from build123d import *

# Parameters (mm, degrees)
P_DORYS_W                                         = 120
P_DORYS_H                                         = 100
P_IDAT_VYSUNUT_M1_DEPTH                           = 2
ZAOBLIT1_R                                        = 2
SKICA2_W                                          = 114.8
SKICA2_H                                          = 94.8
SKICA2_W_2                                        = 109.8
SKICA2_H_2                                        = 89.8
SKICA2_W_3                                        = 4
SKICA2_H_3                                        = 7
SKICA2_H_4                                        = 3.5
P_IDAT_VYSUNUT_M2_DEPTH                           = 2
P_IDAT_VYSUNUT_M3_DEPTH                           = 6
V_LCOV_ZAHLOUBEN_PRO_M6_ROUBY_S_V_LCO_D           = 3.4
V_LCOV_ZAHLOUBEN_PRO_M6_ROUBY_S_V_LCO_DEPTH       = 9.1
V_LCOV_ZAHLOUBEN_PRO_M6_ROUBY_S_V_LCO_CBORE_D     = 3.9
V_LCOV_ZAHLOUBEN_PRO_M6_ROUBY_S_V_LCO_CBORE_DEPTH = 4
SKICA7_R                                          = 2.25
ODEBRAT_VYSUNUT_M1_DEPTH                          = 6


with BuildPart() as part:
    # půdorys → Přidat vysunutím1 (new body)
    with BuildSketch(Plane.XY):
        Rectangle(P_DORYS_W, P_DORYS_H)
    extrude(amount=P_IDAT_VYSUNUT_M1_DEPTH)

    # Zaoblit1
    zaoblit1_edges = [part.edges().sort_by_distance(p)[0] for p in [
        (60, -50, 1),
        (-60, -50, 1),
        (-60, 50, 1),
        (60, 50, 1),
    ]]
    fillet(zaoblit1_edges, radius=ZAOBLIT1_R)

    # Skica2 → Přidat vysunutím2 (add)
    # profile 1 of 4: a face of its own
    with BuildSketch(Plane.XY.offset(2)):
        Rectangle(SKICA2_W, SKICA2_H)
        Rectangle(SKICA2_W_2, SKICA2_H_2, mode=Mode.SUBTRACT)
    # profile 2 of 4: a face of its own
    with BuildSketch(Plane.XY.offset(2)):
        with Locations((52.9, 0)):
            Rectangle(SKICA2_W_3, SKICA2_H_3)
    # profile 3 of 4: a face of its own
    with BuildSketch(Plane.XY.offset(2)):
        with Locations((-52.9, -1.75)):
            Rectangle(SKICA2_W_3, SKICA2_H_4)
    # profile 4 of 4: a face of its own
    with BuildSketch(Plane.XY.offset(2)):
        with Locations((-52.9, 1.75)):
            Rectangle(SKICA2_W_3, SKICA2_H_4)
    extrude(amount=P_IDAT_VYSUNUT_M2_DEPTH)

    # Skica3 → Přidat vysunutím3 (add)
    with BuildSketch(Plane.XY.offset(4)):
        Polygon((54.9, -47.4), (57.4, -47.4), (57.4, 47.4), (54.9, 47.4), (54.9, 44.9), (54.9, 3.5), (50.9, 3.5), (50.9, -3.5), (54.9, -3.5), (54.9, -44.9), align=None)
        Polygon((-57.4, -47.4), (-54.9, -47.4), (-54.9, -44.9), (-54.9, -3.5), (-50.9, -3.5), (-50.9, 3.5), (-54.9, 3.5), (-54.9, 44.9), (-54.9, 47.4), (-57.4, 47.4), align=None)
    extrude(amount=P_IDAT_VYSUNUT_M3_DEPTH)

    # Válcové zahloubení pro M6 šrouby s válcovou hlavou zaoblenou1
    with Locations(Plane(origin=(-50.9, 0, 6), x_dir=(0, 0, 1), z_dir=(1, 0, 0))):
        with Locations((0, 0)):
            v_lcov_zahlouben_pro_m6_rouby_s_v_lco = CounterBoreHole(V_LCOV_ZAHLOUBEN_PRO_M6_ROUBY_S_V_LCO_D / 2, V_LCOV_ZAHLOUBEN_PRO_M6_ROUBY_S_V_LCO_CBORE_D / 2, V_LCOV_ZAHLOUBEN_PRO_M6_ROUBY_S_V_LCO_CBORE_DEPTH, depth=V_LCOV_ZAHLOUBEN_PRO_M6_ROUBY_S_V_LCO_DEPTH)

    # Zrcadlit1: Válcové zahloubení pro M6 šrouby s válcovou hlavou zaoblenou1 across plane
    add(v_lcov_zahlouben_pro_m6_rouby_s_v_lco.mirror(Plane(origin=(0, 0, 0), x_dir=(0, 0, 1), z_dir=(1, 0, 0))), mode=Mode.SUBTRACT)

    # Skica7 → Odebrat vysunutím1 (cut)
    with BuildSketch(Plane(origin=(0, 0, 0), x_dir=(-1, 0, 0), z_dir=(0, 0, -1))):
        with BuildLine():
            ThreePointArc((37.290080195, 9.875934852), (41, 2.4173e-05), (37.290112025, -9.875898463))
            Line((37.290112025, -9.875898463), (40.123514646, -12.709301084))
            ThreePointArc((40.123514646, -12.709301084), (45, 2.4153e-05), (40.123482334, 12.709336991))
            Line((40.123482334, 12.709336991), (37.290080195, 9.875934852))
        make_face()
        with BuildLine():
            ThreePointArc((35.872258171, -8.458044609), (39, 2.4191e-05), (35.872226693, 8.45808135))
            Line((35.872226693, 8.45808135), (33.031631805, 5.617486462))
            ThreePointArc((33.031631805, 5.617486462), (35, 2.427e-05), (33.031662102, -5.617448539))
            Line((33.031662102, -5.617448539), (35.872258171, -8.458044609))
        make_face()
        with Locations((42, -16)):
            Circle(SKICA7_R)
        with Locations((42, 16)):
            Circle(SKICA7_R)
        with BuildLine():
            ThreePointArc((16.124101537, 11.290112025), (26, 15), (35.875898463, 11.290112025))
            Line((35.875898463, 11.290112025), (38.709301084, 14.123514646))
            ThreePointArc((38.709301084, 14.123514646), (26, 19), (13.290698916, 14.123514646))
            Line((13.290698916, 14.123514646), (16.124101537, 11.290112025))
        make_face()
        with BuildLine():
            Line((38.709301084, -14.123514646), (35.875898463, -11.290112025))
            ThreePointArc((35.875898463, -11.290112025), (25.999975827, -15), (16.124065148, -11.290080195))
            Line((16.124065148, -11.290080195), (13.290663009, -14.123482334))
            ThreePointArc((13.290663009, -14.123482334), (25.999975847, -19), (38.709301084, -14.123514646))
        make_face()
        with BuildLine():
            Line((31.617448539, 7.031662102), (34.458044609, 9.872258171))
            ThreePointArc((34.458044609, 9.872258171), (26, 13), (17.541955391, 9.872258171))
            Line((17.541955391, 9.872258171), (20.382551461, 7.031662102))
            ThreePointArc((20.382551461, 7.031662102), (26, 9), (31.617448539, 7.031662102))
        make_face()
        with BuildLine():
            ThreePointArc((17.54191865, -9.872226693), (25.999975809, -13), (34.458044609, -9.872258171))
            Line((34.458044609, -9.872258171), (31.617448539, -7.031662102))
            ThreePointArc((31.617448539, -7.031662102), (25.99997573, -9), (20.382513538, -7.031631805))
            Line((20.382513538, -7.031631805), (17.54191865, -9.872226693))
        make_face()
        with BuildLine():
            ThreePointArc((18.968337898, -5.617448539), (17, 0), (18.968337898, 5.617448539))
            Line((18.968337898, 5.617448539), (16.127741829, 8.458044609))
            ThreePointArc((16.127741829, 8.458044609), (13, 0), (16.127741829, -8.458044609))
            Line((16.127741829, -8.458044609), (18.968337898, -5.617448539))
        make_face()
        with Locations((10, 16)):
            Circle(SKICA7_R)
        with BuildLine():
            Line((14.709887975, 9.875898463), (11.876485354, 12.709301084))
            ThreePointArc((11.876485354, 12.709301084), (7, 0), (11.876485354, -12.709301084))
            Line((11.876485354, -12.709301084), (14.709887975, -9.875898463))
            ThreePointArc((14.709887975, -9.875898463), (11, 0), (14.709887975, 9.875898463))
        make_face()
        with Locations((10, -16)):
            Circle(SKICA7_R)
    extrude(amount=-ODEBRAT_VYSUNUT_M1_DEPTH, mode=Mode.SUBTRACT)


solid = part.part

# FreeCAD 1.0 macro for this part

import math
import FreeCAD as App
import Part
import Sketcher
from FreeCAD import Vector


def edges_at(feature, points):
    """Names of the edges that pass closest to the given points."""
    edges = feature.Shape.Edges
    near = lambda p: min(range(len(edges)), key=lambda i: edges[i].distToShape(Part.Vertex(*p))[0])
    return sorted({f"Edge{near(p) + 1}" for p in points})

doc = App.newDocument("Part")
body = doc.addObject("PartDesign::Body", "Body")

sketch1 = body.newObject("Sketcher::SketchObject", "Sketch")
sketch1.AttachmentSupport = (doc.getObject("XY_Plane"), [""])
sketch1.MapMode = "FlatFace"
sketch1.addGeometry([
    Part.LineSegment(Vector(-60, 50, 0), Vector(-60, -50, 0)),
    Part.LineSegment(Vector(-60, -50, 0), Vector(60, -50, 0)),
    Part.LineSegment(Vector(60, -50, 0), Vector(60, 50, 0)),
    Part.LineSegment(Vector(60, 50, 0), Vector(-60, 50, 0)),
], False)
sketch1.addConstraint([
    Sketcher.Constraint("Coincident", 0, 2, 1, 1),
    Sketcher.Constraint("Coincident", 1, 2, 2, 1),
    Sketcher.Constraint("Coincident", 2, 2, 3, 1),
    Sketcher.Constraint("Coincident", 3, 2, 0, 1),
    Sketcher.Constraint("Vertical", 0),
    Sketcher.Constraint("Horizontal", 1),
    Sketcher.Constraint("Vertical", 2),
    Sketcher.Constraint("Horizontal", 3),
    Sketcher.Constraint("Symmetric", 0, 2, 2, 2, -1, 1),
    Sketcher.Constraint("DistanceX", 1, 1, 1, 2, 120.0),
    Sketcher.Constraint("DistanceY", 0, 2, 0, 1, 100.0),
])
pad1 = body.newObject("PartDesign::Pad", "Pad")
pad1.Profile = sketch1
pad1.Length = 2
doc.recompute()

fillet = body.newObject("PartDesign::Fillet", "Fillet")
fillet.Base = (pad1, edges_at(pad1, [
    (60, -50, 1),
    (-60, -50, 1),
    (-60, 50, 1),
    (60, 50, 1),
]))
fillet.Radius = 2

sketch2 = body.newObject("Sketcher::SketchObject", "Sketch001")
sketch2.AttachmentSupport = (doc.getObject("XY_Plane"), [""])
sketch2.MapMode = "FlatFace"
sketch2.AttachmentOffset = App.Placement(Vector(0, 0, 2), App.Rotation())
sketch2.addGeometry([
    Part.LineSegment(Vector(-57.4, 47.4, 0), Vector(-57.4, -47.4, 0)),
    Part.LineSegment(Vector(-57.4, -47.4, 0), Vector(57.4, -47.4, 0)),
    Part.LineSegment(Vector(57.4, -47.4, 0), Vector(57.4, 47.4, 0)),
    Part.LineSegment(Vector(57.4, 47.4, 0), Vector(-57.4, 47.4, 0)),
    Part.LineSegment(Vector(54.9, -44.9, 0), Vector(-54.9, -44.9, 0)),
    Part.LineSegment(Vector(-54.9, -44.9, 0), Vector(-54.9, -3.5, 0)),
    Part.LineSegment(Vector(-54.9, -3.5, 0), Vector(-50.9, -3.5, 0)),
    Part.LineSegment(Vector(-50.9, -3.5, 0), Vector(-50.9, 3.5, 0)),
    Part.LineSegment(Vector(-50.9, 3.5, 0), Vector(-54.9, 3.5, 0)),
    Part.LineSegment(Vector(-54.9, 3.5, 0), Vector(-54.9, 44.9, 0)),
    Part.LineSegment(Vector(-54.9, 44.9, 0), Vector(54.9, 44.9, 0)),
    Part.LineSegment(Vector(54.9, 44.9, 0), Vector(54.9, 3.5, 0)),
    Part.LineSegment(Vector(54.9, 3.5, 0), Vector(50.9, 3.5, 0)),
    Part.LineSegment(Vector(50.9, 3.5, 0), Vector(50.9, -3.5, 0)),
    Part.LineSegment(Vector(50.9, -3.5, 0), Vector(54.9, -3.5, 0)),
    Part.LineSegment(Vector(54.9, -3.5, 0), Vector(54.9, -44.9, 0)),
], False)
sketch2.addConstraint([
    Sketcher.Constraint("Coincident", 0, 2, 1, 1),
    Sketcher.Constraint("Coincident", 1, 2, 2, 1),
    Sketcher.Constraint("Coincident", 2, 2, 3, 1),
    Sketcher.Constraint("Coincident", 3, 2, 0, 1),
    Sketcher.Constraint("Coincident", 4, 2, 5, 1),
    Sketcher.Constraint("Coincident", 5, 2, 6, 1),
    Sketcher.Constraint("Coincident", 6, 2, 7, 1),
    Sketcher.Constraint("Coincident", 7, 2, 8, 1),
    Sketcher.Constraint("Coincident", 8, 2, 9, 1),
    Sketcher.Constraint("Coincident", 9, 2, 10, 1),
    Sketcher.Constraint("Coincident", 10, 2, 11, 1),
    Sketcher.Constraint("Coincident", 11, 2, 12, 1),
    Sketcher.Constraint("Coincident", 12, 2, 13, 1),
    Sketcher.Constraint("Coincident", 13, 2, 14, 1),
    Sketcher.Constraint("Coincident", 14, 2, 15, 1),
    Sketcher.Constraint("Coincident", 15, 2, 4, 1),
    Sketcher.Constraint("Vertical", 0),
    Sketcher.Constraint("Horizontal", 1),
    Sketcher.Constraint("Vertical", 2),
    Sketcher.Constraint("Horizontal", 3),
    Sketcher.Constraint("Horizontal", 4),
    Sketcher.Constraint("Vertical", 5),
    Sketcher.Constraint("Horizontal", 6),
    Sketcher.Constraint("Vertical", 7),
    Sketcher.Constraint("Horizontal", 8),
    Sketcher.Constraint("Vertical", 9),
    Sketcher.Constraint("Horizontal", 10),
    Sketcher.Constraint("Vertical", 11),
    Sketcher.Constraint("Horizontal", 12),
    Sketcher.Constraint("Vertical", 13),
    Sketcher.Constraint("Horizontal", 14),
    Sketcher.Constraint("Vertical", 15),
    Sketcher.Constraint("Symmetric", 0, 2, 2, 2, -1, 1),
    Sketcher.Constraint("Symmetric", 4, 2, 10, 2, -1, 1),
    Sketcher.Constraint("Symmetric", 6, 2, 12, 2, -1, 1),
    Sketcher.Constraint("Symmetric", 8, 2, 14, 2, -1, 1),
    Sketcher.Constraint("Symmetric", 8, 2, 11, 2, -2),
    Sketcher.Constraint("DistanceX", 6, 1, 6, 2, 4.0),
    Sketcher.Constraint("DistanceY", 7, 1, 7, 2, 7.0),
    Sketcher.Constraint("DistanceX", 1, 1, 1, 2, 114.8),
    Sketcher.Constraint("DistanceX", 4, 2, 4, 1, 109.8),
    Sketcher.Constraint("DistanceY", 0, 2, 0, 1, 94.8),
    Sketcher.Constraint("DistanceY", 5, 1, 5, 2, 41.4),
])
pad2 = body.newObject("PartDesign::Pad", "Pad001")
pad2.Profile = sketch2
pad2.Length = 2

sketch3 = body.newObject("Sketcher::SketchObject", "Sketch002")
sketch3.AttachmentSupport = (doc.getObject("XY_Plane"), [""])
sketch3.MapMode = "FlatFace"
sketch3.AttachmentOffset = App.Placement(Vector(0, 0, 4), App.Rotation())
sketch3.addGeometry([
    Part.LineSegment(Vector(54.9, -47.4, 0), Vector(57.4, -47.4, 0)),
    Part.LineSegment(Vector(57.4, -47.4, 0), Vector(57.4, 47.4, 0)),
    Part.LineSegment(Vector(57.4, 47.4, 0), Vector(54.9, 47.4, 0)),
    Part.LineSegment(Vector(54.9, 47.4, 0), Vector(54.9, 3.5, 0)),
    Part.LineSegment(Vector(54.9, 3.5, 0), Vector(50.9, 3.5, 0)),
    Part.LineSegment(Vector(50.9, 3.5, 0), Vector(50.9, -3.5, 0)),
    Part.LineSegment(Vector(50.9, -3.5, 0), Vector(54.9, -3.5, 0)),
    Part.LineSegment(Vector(54.9, -3.5, 0), Vector(54.9, -47.4, 0)),
    Part.LineSegment(Vector(-57.4, -47.4, 0), Vector(-54.9, -47.4, 0)),
    Part.LineSegment(Vector(-54.9, -47.4, 0), Vector(-54.9, -3.5, 0)),
    Part.LineSegment(Vector(-54.9, -3.5, 0), Vector(-50.9, -3.5, 0)),
    Part.LineSegment(Vector(-50.9, -3.5, 0), Vector(-50.9, 3.5, 0)),
    Part.LineSegment(Vector(-50.9, 3.5, 0), Vector(-54.9, 3.5, 0)),
    Part.LineSegment(Vector(-54.9, 3.5, 0), Vector(-54.9, 47.4, 0)),
    Part.LineSegment(Vector(-54.9, 47.4, 0), Vector(-57.4, 47.4, 0)),
    Part.LineSegment(Vector(-57.4, 47.4, 0), Vector(-57.4, -47.4, 0)),
], False)
sketch3.addConstraint([
    Sketcher.Constraint("Coincident", 0, 2, 1, 1),
    Sketcher.Constraint("Coincident", 1, 2, 2, 1),
    Sketcher.Constraint("Coincident", 2, 2, 3, 1),
    Sketcher.Constraint("Coincident", 3, 2, 4, 1),
    Sketcher.Constraint("Coincident", 4, 2, 5, 1),
    Sketcher.Constraint("Coincident", 5, 2, 6, 1),
    Sketcher.Constraint("Coincident", 6, 2, 7, 1),
    Sketcher.Constraint("Coincident", 7, 2, 0, 1),
    Sketcher.Constraint("Coincident", 8, 2, 9, 1),
    Sketcher.Constraint("Coincident", 9, 2, 10, 1),
    Sketcher.Constraint("Coincident", 10, 2, 11, 1),
    Sketcher.Constraint("Coincident", 11, 2, 12, 1),
    Sketcher.Constraint("Coincident", 12, 2, 13, 1),
    Sketcher.Constraint("Coincident", 13, 2, 14, 1),
    Sketcher.Constraint("Coincident", 14, 2, 15, 1),
    Sketcher.Constraint("Coincident", 15, 2, 8, 1),
    Sketcher.Constraint("Horizontal", 0),
    Sketcher.Constraint("Vertical", 1),
    Sketcher.Constraint("Horizontal", 2),
    Sketcher.Constraint("Vertical", 3),
    Sketcher.Constraint("Horizontal", 4),
    Sketcher.Constraint("Vertical", 5),
    Sketcher.Constraint("Horizontal", 6),
    Sketcher.Constraint("Vertical", 7),
    Sketcher.Constraint("Horizontal", 8),
    Sketcher.Constraint("Vertical", 9),
    Sketcher.Constraint("Horizontal", 10),
    Sketcher.Constraint("Vertical", 11),
    Sketcher.Constraint("Horizontal", 12),
    Sketcher.Constraint("Vertical", 13),
    Sketcher.Constraint("Horizontal", 14),
    Sketcher.Constraint("Vertical", 15),
    Sketcher.Constraint("Symmetric", 2, 2, 8, 2, -1, 1),
    Sketcher.Constraint("Symmetric", 4, 2, 10, 2, -1, 1),
    Sketcher.Constraint("Symmetric", 6, 2, 12, 2, -1, 1),
    Sketcher.Constraint("Symmetric", 0, 2, 14, 2, -1, 1),
    Sketcher.Constraint("Symmetric", 7, 2, 8, 2, -2),
    Sketcher.Constraint("Horizontal", 6, 2, 9, 2),
    Sketcher.Constraint("DistanceX", 4, 2, 4, 1, 4.0),
    Sketcher.Constraint("DistanceY", 5, 2, 5, 1, 7.0),
    Sketcher.Constraint("DistanceX", 0, 1, 0, 2, 2.5),
    Sketcher.Constraint("DistanceY", 1, 1, 1, 2, 94.8),
    Sketcher.Constraint("DistanceX", -1, 1, 0, 2, 57.4),
])
pad3 = body.newObject("PartDesign::Pad", "Pad002")
pad3.Profile = sketch3
pad3.Length = 6

sketch4 = body.newObject("Sketcher::SketchObject", "Sketch003")
sketch4.AttachmentSupport = (doc.getObject("YZ_Plane"), [""])
sketch4.MapMode = "FlatFace"
sketch4.AttachmentOffset = App.Placement(Vector(0, 0, -50.9), App.Rotation())
sketch4.addGeometry(Part.Circle(Vector(0, 6, 0), Vector(0, 0, 1), 1.7), False)
sketch4.addConstraint([
    Sketcher.Constraint("PointOnObject", 0, 3, -2),
    Sketcher.Constraint("Diameter", 0, 3.4),
    Sketcher.Constraint("DistanceY", -1, 1, 0, 3, 6.0),
])
doc.recompute()
hole = body.newObject("PartDesign::Hole", "Hole")
hole.Profile = sketch4
hole.ThreadType = "None"
hole.Diameter = 3.4
hole.DepthType = "Dimension"
hole.Depth = 9.1
hole.DrillPoint = "Flat"
hole.HoleCutType = "Counterbore"
hole.HoleCutDiameter = 3.9
hole.HoleCutDepth = 4
doc.recompute()

mirrored = body.newObject("PartDesign::Mirrored", "Mirrored")
mirrored.Originals = [hole]
mirrored.MirrorPlane = (doc.getObject("YZ_Plane"), [""])
body.Tip = mirrored

sketch5 = body.newObject("Sketcher::SketchObject", "Sketch004")
sketch5.AttachmentSupport = (doc.getObject("XY_Plane"), [""])
sketch5.MapMode = "FlatFace"
sketch5.addGeometry([
    Part.ArcOfCircle(Part.Circle(Vector(-26, 0, 0), Vector(0, 0, 1), 15), math.radians(138.822369), math.radians(221.177446)),
    Part.LineSegment(Vector(-37.290112, -9.875898, 0), Vector(-40.123515, -12.709301, 0)),
    Part.ArcOfCircle(Part.Circle(Vector(-26, 0, 0), Vector(0, 0, 1), 19), math.radians(138.016816), math.radians(221.983039)),
    Part.LineSegment(Vector(-40.123482, 12.709337, 0), Vector(-37.29008, 9.875935, 0)),
    Part.ArcOfCircle(Part.Circle(Vector(-26, 0, 0), Vector(0, 0, 1), 13), math.radians(139.411513), math.radians(220.588274)),
    Part.LineSegment(Vector(-35.872227, 8.458081, 0), Vector(-33.031632, 5.617486, 0)),
    Part.ArcOfCircle(Part.Circle(Vector(-26, 0, 0), Vector(0, 0, 1), 9), math.radians(141.379061), math.radians(218.62063)),
    Part.LineSegment(Vector(-33.031662, -5.617449, 0), Vector(-35.872258, -8.458045, 0)),
    Part.Circle(Vector(-42, -16, 0), Vector(0, 0, 1), 2.25),
    Part.Circle(Vector(-42, 16, 0), Vector(0, 0, 1), 2.25),
    Part.ArcOfCircle(Part.Circle(Vector(-26, 0, 0), Vector(0, 0, 1), 15), math.radians(48.822554), math.radians(131.177446)),
    Part.LineSegment(Vector(-35.875898, 11.290112, 0), Vector(-38.709301, 14.123515, 0)),
    Part.ArcOfCircle(Part.Circle(Vector(-26, 0, 0), Vector(0, 0, 1), 19), math.radians(48.016961), math.radians(131.983039)),
    Part.LineSegment(Vector(-13.290699, 14.123515, 0), Vector(-16.124102, 11.290112, 0)),
    Part.LineSegment(Vector(-38.709301, -14.123515, 0), Vector(-35.875898, -11.290112, 0)),
    Part.ArcOfCircle(Part.Circle(Vector(-26, 0, 0), Vector(0, 0, 1), 15), math.radians(-131.177446), math.radians(-48.822369)),
    Part.LineSegment(Vector(-16.124065, -11.29008, 0), Vector(-13.290663, -14.123482, 0)),
    Part.ArcOfCircle(Part.Circle(Vector(-26, 0, 0), Vector(0, 0, 1), 19), math.radians(-131.983039), math.radians(-48.016816)),
    Part.LineSegment(Vector(-31.617449, 7.031662, 0), Vector(-34.458045, 9.872258, 0)),
    Part.ArcOfCircle(Part.Circle(Vector(-26, 0, 0), Vector(0, 0, 1), 13), math.radians(49.411726), math.radians(130.588274)),
    Part.LineSegment(Vector(-17.541955, 9.872258, 0), Vector(-20.382551, 7.031662, 0)),
    Part.ArcOfCircle(Part.Circle(Vector(-26, 0, 0), Vector(0, 0, 1), 9), math.radians(51.37937), math.radians(128.62063)),
    Part.ArcOfCircle(Part.Circle(Vector(-26, 0, 0), Vector(0, 0, 1), 13), math.radians(-130.588274), math.radians(-49.411513)),
    Part.LineSegment(Vector(-34.458045, -9.872258, 0), Vector(-31.617449, -7.031662, 0)),
    Part.ArcOfCircle(Part.Circle(Vector(-26, 0, 0), Vector(0, 0, 1), 9), math.radians(-128.62063), math.radians(-51.379061)),
    Part.LineSegment(Vector(-20.382514, -7.031632, 0), Vector(-17.541919, -9.872227, 0)),
    Part.ArcOfCircle(Part.Circle(Vector(-26, 0, 0), Vector(0, 0, 1), 9), math.radians(-38.62063), math.radians(38.62063)),
    Part.LineSegment(Vector(-18.968338, 5.617449, 0), Vector(-16.127742, 8.458045, 0)),
    Part.ArcOfCircle(Part.Circle(Vector(-26, 0, 0), Vector(0, 0, 1), 13), math.radians(-40.588274), math.radians(40.588274)),
    Part.LineSegment(Vector(-16.127742, -8.458045, 0), Vector(-18.968338, -5.617449, 0)),
    Part.Circle(Vector(-10, 16, 0), Vector(0, 0, 1), 2.25),
    Part.LineSegment(Vector(-14.709888, 9.875898, 0), Vector(-11.876485, 12.709301, 0)),
    Part.ArcOfCircle(Part.Circle(Vector(-26, 0, 0), Vector(0, 0, 1), 19), math.radians(-41.983039), math.radians(41.983039)),
    Part.LineSegment(Vector(-11.876485, -12.709301, 0), Vector(-14.709888, -9.875898, 0)),
    Part.ArcOfCircle(Part.Circle(Vector(-26, 0, 0), Vector(0, 0, 1), 15), math.radians(-41.177446), math.radians(41.177446)),
    Part.Circle(Vector(-10, -16, 0), Vector(0, 0, 1), 2.25),
], False)
sketch5.addConstraint([
    Sketcher.Constraint("Coincident", 0, 2, 1, 1),
    Sketcher.Constraint("Coincident", 1, 2, 2, 2),
    Sketcher.Constraint("Coincident", 2, 1, 3, 1),
    Sketcher.Constraint("Coincident", 3, 2, 0, 1),
    Sketcher.Constraint("Coincident", 4, 1, 5, 1),
    Sketcher.Constraint("Coincident", 5, 2, 6, 1),
    Sketcher.Constraint("Coincident", 6, 2, 7, 1),
    Sketcher.Constraint("Coincident", 7, 2, 4, 2),
    Sketcher.Constraint("Coincident", 10, 2, 11, 1),
    Sketcher.Constraint("Coincident", 11, 2, 12, 2),
    Sketcher.Constraint("Coincident", 12, 1, 13, 1),
    Sketcher.Constraint("Coincident", 13, 2, 10, 1),
    Sketcher.Constraint("Coincident", 14, 2, 15, 1),
    Sketcher.Constraint("Coincident", 15, 2, 16, 1),
    Sketcher.Constraint("Coincident", 16, 2, 17, 2),
    Sketcher.Constraint("Coincident", 17, 1, 14, 1),
    Sketcher.Constraint("Coincident", 18, 2, 19, 2),
    Sketcher.Constraint("Coincident", 19, 1, 20, 1),
    Sketcher.Constraint("Coincident", 20, 2, 21, 1),
    Sketcher.Constraint("Coincident", 21, 2, 18, 1),
    Sketcher.Constraint("Coincident", 22, 1, 23, 1),
    Sketcher.Constraint("Coincident", 23, 2, 24, 1),
    Sketcher.Constraint("Coincident", 24, 2, 25, 1),
    Sketcher.Constraint("Coincident", 25, 2, 22, 2),
    Sketcher.Constraint("Coincident", 26, 2, 27, 1),
    Sketcher.Constraint("Coincident", 27, 2, 28, 2),
    Sketcher.Constraint("Coincident", 28, 1, 29, 1),
    Sketcher.Constraint("Coincident", 29, 2, 26, 1),
    Sketcher.Constraint("Coincident", 31, 2, 32, 2),
    Sketcher.Constraint("Coincident", 32, 1, 33, 1),
    Sketcher.Constraint("Coincident", 33, 2, 34, 1),
    Sketcher.Constraint("Coincident", 34, 2, 31, 1),
    Sketcher.Constraint("Coincident", 2, 3, 0, 3),
    Sketcher.Constraint("Coincident", 4, 3, 0, 3),
    Sketcher.Constraint("Coincident", 6, 3, 0, 3),
    Sketcher.Constraint("Coincident", 10, 3, 0, 3),
    Sketcher.Constraint("Coincident", 12, 3, 0, 3),
    Sketcher.Constraint("Coincident", 15, 3, 0, 3),
    Sketcher.Constraint("Coincident", 17, 3, 0, 3),
    Sketcher.Constraint("Coincident", 19, 3, 0, 3),
    Sketcher.Constraint("Coincident", 21, 3, 0, 3),
    Sketcher.Constraint("Coincident", 22, 3, 0, 3),
    Sketcher.Constraint("Coincident", 24, 3, 0, 3),
    Sketcher.Constraint("Coincident", 26, 3, 0, 3),
    Sketcher.Constraint("Coincident", 28, 3, 0, 3),
    Sketcher.Constraint("Coincident", 32, 3, 0, 3),
    Sketcher.Constraint("Coincident", 34, 3, 0, 3),
    Sketcher.Constraint("PointOnObject", 0, 3, -1),
    Sketcher.Constraint("Radius", 0, 15.0),
    Sketcher.Constraint("Radius", 2, 19.0),
    Sketcher.Constraint("Radius", 4, 13.0),
    Sketcher.Constraint("Radius", 6, 9.0),
    Sketcher.Constraint("Radius", 10, 15.0),
    Sketcher.Constraint("Radius", 12, 19.0),
    Sketcher.Constraint("Radius", 15, 15.0),
    Sketcher.Constraint("Radius", 17, 19.0),
    Sketcher.Constraint("Radius", 19, 13.0),
    Sketcher.Constraint("Radius", 21, 9.0),
    Sketcher.Constraint("Radius", 22, 13.0),
    Sketcher.Constraint("Radius", 24, 9.0),
    Sketcher.Constraint("Radius", 26, 9.0),
    Sketcher.Constraint("Radius", 28, 13.0),
    Sketcher.Constraint("Radius", 32, 19.0),
    Sketcher.Constraint("Radius", 34, 15.0),
    Sketcher.Constraint("Diameter", 8, 4.5),
    Sketcher.Constraint("Diameter", 9, 4.5),
    Sketcher.Constraint("Diameter", 30, 4.5),
    Sketcher.Constraint("Diameter", 35, 4.5),
    Sketcher.Constraint("DistanceX", 0, 3, -1, 1, 26.0),
    Sketcher.Constraint("DistanceX", 8, 3, -1, 1, 42.0),
    Sketcher.Constraint("DistanceY", 8, 3, -1, 1, 16.0),
    Sketcher.Constraint("DistanceX", 9, 3, -1, 1, 42.0),
    Sketcher.Constraint("DistanceY", -1, 1, 9, 3, 16.0),
    Sketcher.Constraint("DistanceX", 30, 3, -1, 1, 10.0),
    Sketcher.Constraint("DistanceY", -1, 1, 30, 3, 16.0),
    Sketcher.Constraint("DistanceX", 35, 3, -1, 1, 10.0),
    Sketcher.Constraint("DistanceY", 35, 3, -1, 1, 16.0),
    Sketcher.Constraint("DistanceY", 0, 2, -1, 1, 9.875898),
    Sketcher.Constraint("DistanceY", 1, 2, -1, 1, 12.709301),
    Sketcher.Constraint("DistanceX", 10, 2, -1, 1, 35.875898),
    Sketcher.Constraint("DistanceX", 11, 2, -1, 1, 38.709301),
    Sketcher.Constraint("DistanceX", 12, 1, -1, 1, 13.290699),
    Sketcher.Constraint("DistanceX", 13, 2, -1, 1, 16.124102),
    Sketcher.Constraint("DistanceX", 14, 2, -1, 1, 35.875898),
    Sketcher.Constraint("DistanceX", 17, 1, -1, 1, 38.709301),
    Sketcher.Constraint("DistanceY", -1, 1, 31, 2, 12.709301),
    Sketcher.Constraint("DistanceY", 32, 1, -1, 1, 12.709301),
    Sketcher.Constraint("DistanceY", 33, 2, -1, 1, 9.875898),
    Sketcher.Constraint("DistanceY", -1, 1, 34, 2, 9.875898),
    Sketcher.Constraint("Distance", 7, 4.017209),
    Sketcher.Constraint("Distance", 18, 4.017209),
    Sketcher.Constraint("Distance", 20, 4.017209),
    Sketcher.Constraint("Distance", 23, 4.017209),
    Sketcher.Constraint("Distance", 27, 4.017209),
    Sketcher.Constraint("Distance", 29, 4.017209),
    Sketcher.Constraint("DistanceX", 3, 2, -1, 1, 37.29008),
    Sketcher.Constraint("DistanceY", -1, 1, 4, 1, 8.458081),
    Sketcher.Constraint("DistanceX", 5, 2, -1, 1, 33.031632),
    Sketcher.Constraint("DistanceY", 6, 2, -1, 1, 5.617449),
    Sketcher.Constraint("DistanceY", 15, 2, -1, 1, 11.29008),
    Sketcher.Constraint("DistanceY", -1, 1, 18, 2, 9.872258),
    Sketcher.Constraint("DistanceY", -1, 1, 19, 1, 9.872258),
    Sketcher.Constraint("DistanceY", 22, 1, -1, 1, 9.872258),
    Sketcher.Constraint("DistanceY", 24, 2, -1, 1, 7.031632),
    Sketcher.Constraint("DistanceX", 25, 2, -1, 1, 17.541919),
    Sketcher.Constraint("DistanceY", -1, 1, 26, 2, 5.617449),
    Sketcher.Constraint("DistanceX", 28, 1, -1, 1, 16.127742),
    Sketcher.Constraint("DistanceX", 2, 1, 11, 2, 1.414181),
    Sketcher.Constraint("DistanceX", 28, 1, 16, 2, 2.837079),
])
pocket1 = body.newObject("PartDesign::Pocket", "Pocket")
pocket1.Profile = sketch5
pocket1.Length = 6
pocket1.Reversed = True

doc.recompute()
